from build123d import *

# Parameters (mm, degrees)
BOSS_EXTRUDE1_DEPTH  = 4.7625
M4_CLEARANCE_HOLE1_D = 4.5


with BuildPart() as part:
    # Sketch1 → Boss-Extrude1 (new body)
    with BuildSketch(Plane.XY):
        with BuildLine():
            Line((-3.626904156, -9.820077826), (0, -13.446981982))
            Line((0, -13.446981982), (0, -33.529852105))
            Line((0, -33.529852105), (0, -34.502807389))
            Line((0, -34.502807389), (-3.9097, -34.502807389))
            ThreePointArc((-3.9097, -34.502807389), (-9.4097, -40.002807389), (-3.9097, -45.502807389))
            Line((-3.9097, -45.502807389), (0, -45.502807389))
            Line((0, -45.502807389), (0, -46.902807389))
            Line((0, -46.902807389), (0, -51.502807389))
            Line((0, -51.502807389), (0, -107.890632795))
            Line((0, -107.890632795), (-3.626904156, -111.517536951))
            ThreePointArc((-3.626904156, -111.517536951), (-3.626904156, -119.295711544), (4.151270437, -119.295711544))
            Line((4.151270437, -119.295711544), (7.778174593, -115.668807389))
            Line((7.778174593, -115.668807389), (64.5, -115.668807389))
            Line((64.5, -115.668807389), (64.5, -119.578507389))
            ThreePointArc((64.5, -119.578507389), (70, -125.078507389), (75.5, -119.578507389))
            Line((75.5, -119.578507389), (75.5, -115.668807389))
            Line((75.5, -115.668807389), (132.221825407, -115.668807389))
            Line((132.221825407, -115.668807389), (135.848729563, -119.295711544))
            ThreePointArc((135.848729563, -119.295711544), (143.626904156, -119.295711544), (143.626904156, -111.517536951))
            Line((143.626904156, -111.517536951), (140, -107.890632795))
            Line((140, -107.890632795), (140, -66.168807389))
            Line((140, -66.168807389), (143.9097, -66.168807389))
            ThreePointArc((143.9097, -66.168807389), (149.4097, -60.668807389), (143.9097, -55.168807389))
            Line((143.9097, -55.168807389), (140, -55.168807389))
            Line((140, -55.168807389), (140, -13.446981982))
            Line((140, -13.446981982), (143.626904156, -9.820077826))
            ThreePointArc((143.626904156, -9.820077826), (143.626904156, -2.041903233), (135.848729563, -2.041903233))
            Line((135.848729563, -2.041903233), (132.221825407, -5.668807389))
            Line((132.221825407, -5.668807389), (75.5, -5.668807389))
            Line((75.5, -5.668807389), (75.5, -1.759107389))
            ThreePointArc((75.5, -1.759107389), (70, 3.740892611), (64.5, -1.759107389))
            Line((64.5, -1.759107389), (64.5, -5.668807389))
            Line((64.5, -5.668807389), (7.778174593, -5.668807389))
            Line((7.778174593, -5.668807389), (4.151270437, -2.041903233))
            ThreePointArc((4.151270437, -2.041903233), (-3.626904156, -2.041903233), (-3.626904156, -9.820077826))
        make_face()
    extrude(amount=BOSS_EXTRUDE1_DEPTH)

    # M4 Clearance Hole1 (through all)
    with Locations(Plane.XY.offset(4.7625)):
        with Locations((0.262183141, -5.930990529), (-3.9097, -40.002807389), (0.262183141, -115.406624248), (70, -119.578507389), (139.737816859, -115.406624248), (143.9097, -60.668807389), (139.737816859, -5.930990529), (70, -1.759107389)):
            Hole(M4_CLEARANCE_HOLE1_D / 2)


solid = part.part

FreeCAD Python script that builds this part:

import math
import FreeCAD as App
import Part
import Sketcher
from FreeCAD import Vector
Q = App.Units.Quantity

doc = App.newDocument("Part")
body = doc.addObject("PartDesign::Body", "Body")

# Sketch on XY plane
sketch1 = doc.addObject("Sketcher::SketchObject", "Sketch")
body.addObject(sketch1)
sketch1.AttachmentSupport = (doc.XY_Plane, [""])
sketch1.MapMode = "FlatFace"
sketch1.addGeometry(Part.LineSegment(Vector(-3.6, -9.8, 0), Vector(0, -13.4, 0)), False)
sketch1.addGeometry(Part.LineSegment(Vector(0, -13.4, 0), Vector(0, -34.5, 0)), False)
sketch1.addGeometry(Part.LineSegment(Vector(0, -34.5, 0), Vector(-3.9, -34.5, 0)), False)
sketch1.addGeometry(Part.ArcOfCircle(Part.Circle(Vector(-3.9, -40, 0), Vector(0, 0, 1), 5.5), math.radians(90), math.radians(270)), False)
sketch1.addGeometry(Part.LineSegment(Vector(-3.9, -45.5, 0), Vector(0, -45.5, 0)), False)
sketch1.addGeometry(Part.LineSegment(Vector(0, -45.5, 0), Vector(0, -107.9, 0)), False)
sketch1.addGeometry(Part.LineSegment(Vector(0, -107.9, 0), Vector(-3.6, -111.5, 0)), False)
sketch1.addGeometry(Part.ArcOfCircle(Part.Circle(Vector(0.3, -115.4, 0), Vector(0, 0, 1), 5.5), math.radians(135), math.radians(315)), False)
sketch1.addGeometry(Part.LineSegment(Vector(4.2, -119.3, 0), Vector(7.8, -115.7, 0)), False)
sketch1.addGeometry(Part.LineSegment(Vector(7.8, -115.7, 0), Vector(64.5, -115.7, 0)), False)
sketch1.addGeometry(Part.LineSegment(Vector(64.5, -115.7, 0), Vector(64.5, -119.6, 0)), False)
sketch1.addGeometry(Part.ArcOfCircle(Part.Circle(Vector(70, -119.6, 0), Vector(0, 0, 1), 5.5), math.radians(180), math.radians(360)), False)
sketch1.addGeometry(Part.LineSegment(Vector(75.5, -119.6, 0), Vector(75.5, -115.7, 0)), False)
sketch1.addGeometry(Part.LineSegment(Vector(75.5, -115.7, 0), Vector(132.2, -115.7, 0)), False)
sketch1.addGeometry(Part.LineSegment(Vector(132.2, -115.7, 0), Vector(135.8, -119.3, 0)), False)
sketch1.addGeometry(Part.ArcOfCircle(Part.Circle(Vector(139.7, -115.4, 0), Vector(0, 0, 1), 5.5), math.radians(-135), math.radians(45)), False)
sketch1.addGeometry(Part.LineSegment(Vector(143.6, -111.5, 0), Vector(140, -107.9, 0)), False)
sketch1.addGeometry(Part.LineSegment(Vector(140, -107.9, 0), Vector(140, -66.2, 0)), False)
sketch1.addGeometry(Part.LineSegment(Vector(140, -66.2, 0), Vector(143.9, -66.2, 0)), False)
sketch1.addGeometry(Part.ArcOfCircle(Part.Circle(Vector(143.9, -60.7, 0), Vector(0, 0, 1), 5.5), math.radians(-90), math.radians(90)), False)
sketch1.addGeometry(Part.LineSegment(Vector(143.9, -55.2, 0), Vector(140, -55.2, 0)), False)
sketch1.addGeometry(Part.LineSegment(Vector(140, -55.2, 0), Vector(140, -13.4, 0)), False)
sketch1.addGeometry(Part.LineSegment(Vector(140, -13.4, 0), Vector(143.6, -9.8, 0)), False)
sketch1.addGeometry(Part.ArcOfCircle(Part.Circle(Vector(139.7, -5.9, 0), Vector(0, 0, 1), 5.5), math.radians(-45), math.radians(135)), False)
sketch1.addGeometry(Part.LineSegment(Vector(135.8, -2, 0), Vector(132.2, -5.7, 0)), False)
sketch1.addGeometry(Part.LineSegment(Vector(132.2, -5.7, 0), Vector(75.5, -5.7, 0)), False)
sketch1.addGeometry(Part.LineSegment(Vector(75.5, -5.7, 0), Vector(75.5, -1.8, 0)), False)
sketch1.addGeometry(Part.ArcOfCircle(Part.Circle(Vector(70, -1.8, 0), Vector(0, 0, 1), 5.5), math.radians(0), math.radians(180)), False)
sketch1.addGeometry(Part.LineSegment(Vector(64.5, -1.8, 0), Vector(64.5, -5.7, 0)), False)
sketch1.addGeometry(Part.LineSegment(Vector(64.5, -5.7, 0), Vector(7.8, -5.7, 0)), False)
sketch1.addGeometry(Part.LineSegment(Vector(7.8, -5.7, 0), Vector(4.2, -2, 0)), False)
sketch1.addGeometry(Part.ArcOfCircle(Part.Circle(Vector(0.3, -5.9, 0), Vector(0, 0, 1), 5.5), math.radians(45), math.radians(225)), False)
sketch1.addConstraint(Sketcher.Constraint("Coincident", 0, 2, 1, 1))
sketch1.addConstraint(Sketcher.Constraint("Coincident", 1, 2, 2, 1))
sketch1.addConstraint(Sketcher.Constraint("Tangent", 2, 2, 3, 1))
sketch1.addConstraint(Sketcher.Constraint("Tangent", 3, 2, 4, 1))
sketch1.addConstraint(Sketcher.Constraint("Coincident", 4, 2, 5, 1))
sketch1.addConstraint(Sketcher.Constraint("Coincident", 5, 2, 6, 1))
sketch1.addConstraint(Sketcher.Constraint("Tangent", 6, 2, 7, 1))
sketch1.addConstraint(Sketcher.Constraint("Tangent", 7, 2, 8, 1))
sketch1.addConstraint(Sketcher.Constraint("Coincident", 8, 2, 9, 1))
sketch1.addConstraint(Sketcher.Constraint("Coincident", 9, 2, 10, 1))
sketch1.addConstraint(Sketcher.Constraint("Tangent", 10, 2, 11, 1))
sketch1.addConstraint(Sketcher.Constraint("Tangent", 11, 2, 12, 1))
sketch1.addConstraint(Sketcher.Constraint("Coincident", 12, 2, 13, 1))
sketch1.addConstraint(Sketcher.Constraint("Coincident", 13, 2, 14, 1))
sketch1.addConstraint(Sketcher.Constraint("Tangent", 14, 2, 15, 1))
sketch1.addConstraint(Sketcher.Constraint("Tangent", 15, 2, 16, 1))
sketch1.addConstraint(Sketcher.Constraint("Coincident", 16, 2, 17, 1))
sketch1.addConstraint(Sketcher.Constraint("Coincident", 17, 2, 18, 1))
sketch1.addConstraint(Sketcher.Constraint("Tangent", 18, 2, 19, 1))
sketch1.addConstraint(Sketcher.Constraint("Tangent", 19, 2, 20, 1))
sketch1.addConstraint(Sketcher.Constraint("Coincident", 20, 2, 21, 1))
sketch1.addConstraint(Sketcher.Constraint("Coincident", 21, 2, 22, 1))
sketch1.addConstraint(Sketcher.Constraint("Tangent", 22, 2, 23, 1))
sketch1.addConstraint(Sketcher.Constraint("Tangent", 23, 2, 24, 1))
sketch1.addConstraint(Sketcher.Constraint("Coincident", 24, 2, 25, 1))
sketch1.addConstraint(Sketcher.Constraint("Coincident", 25, 2, 26, 1))
sketch1.addConstraint(Sketcher.Constraint("Tangent", 26, 2, 27, 1))
sketch1.addConstraint(Sketcher.Constraint("Tangent", 27, 2, 28, 1))
sketch1.addConstraint(Sketcher.Constraint("Coincident", 28, 2, 29, 1))
sketch1.addConstraint(Sketcher.Constraint("Coincident", 29, 2, 30, 1))
sketch1.addConstraint(Sketcher.Constraint("Tangent", 30, 2, 31, 1))
sketch1.addConstraint(Sketcher.Constraint("Tangent", 31, 2, 0, 1))
sketch1.addConstraint(Sketcher.Constraint("Vertical", 1))
sketch1.addConstraint(Sketcher.Constraint("Horizontal", 2))
sketch1.addConstraint(Sketcher.Constraint("Horizontal", 4))
sketch1.addConstraint(Sketcher.Constraint("Vertical", 5))
sketch1.addConstraint(Sketcher.Constraint("Horizontal", 9))
sketch1.addConstraint(Sketcher.Constraint("Vertical", 10))
sketch1.addConstraint(Sketcher.Constraint("Vertical", 12))
sketch1.addConstraint(Sketcher.Constraint("Horizontal", 13))
sketch1.addConstraint(Sketcher.Constraint("Vertical", 17))
sketch1.addConstraint(Sketcher.Constraint("Horizontal", 18))
sketch1.addConstraint(Sketcher.Constraint("Horizontal", 20))
sketch1.addConstraint(Sketcher.Constraint("Vertical", 21))
sketch1.addConstraint(Sketcher.Constraint("Horizontal", 25))
sketch1.addConstraint(Sketcher.Constraint("Vertical", 26))
sketch1.addConstraint(Sketcher.Constraint("Vertical", 28))
sketch1.addConstraint(Sketcher.Constraint("Horizontal", 29))
sketch1.addConstraint(Sketcher.Constraint("Equal", 3, 7))
sketch1.addConstraint(Sketcher.Constraint("Equal", 7, 11))
sketch1.addConstraint(Sketcher.Constraint("Equal", 11, 15))
sketch1.addConstraint(Sketcher.Constraint("Equal", 15, 19))
sketch1.addConstraint(Sketcher.Constraint("Equal", 19, 23))
sketch1.addConstraint(Sketcher.Constraint("Equal", 23, 27))
sketch1.addConstraint(Sketcher.Constraint("Equal", 27, 31))
sketch1.addConstraint(Sketcher.Constraint("PointOnObject", 0, 2, -2))
sketch1.addConstraint(Sketcher.Constraint("PointOnObject", 4, 2, -2))
sketch1.addConstraint(Sketcher.Constraint("Perpendicular", 0, 6))
sketch1.addConstraint(Sketcher.Constraint("Parallel", 6, 8))
sketch1.addConstraint(Sketcher.Constraint("Perpendicular", 8, 14))
sketch1.addConstraint(Sketcher.Constraint("Parallel", 14, 16))
sketch1.addConstraint(Sketcher.Constraint("Perpendicular", 16, 22))
sketch1.addConstraint(Sketcher.Constraint("Parallel", 22, 24))
sketch1.addConstraint(Sketcher.Constraint("Perpendicular", 24, 30))
sketch1.addConstraint(Sketcher.Constraint("Horizontal", 7, 3, 15, 3))
sketch1.addConstraint(Sketcher.Constraint("Horizontal", 23, 3, 31, 3))
sketch1.addConstraint(Sketcher.Constraint("Horizontal", 9, 2, 12, 2))
sketch1.addConstraint(Sketcher.Constraint("Horizontal", 7, 2, 14, 2))
sketch1.addConstraint(Sketcher.Constraint("Horizontal", 5, 2, 16, 2))
sketch1.addConstraint(Sketcher.Constraint("Horizontal", 0, 2, 21, 2))
sketch1.addConstraint(Sketcher.Constraint("Horizontal", 25, 2, 28, 2))
sketch1.addConstraint(Sketcher.Constraint("Vertical", 15, 3, 23, 3))
sketch1.addConstraint(Sketcher.Constraint("Vertical", 11, 3, 27, 3))
sketch1.addConstraint(Sketcher.Constraint("Vertical", 7, 3, 31, 3))
sketch1.addConstraint(Sketcher.Constraint("Vertical", 13, 2, 24, 2))
sketch1.addConstraint(Sketcher.Constraint("Equal", 9, 13))
sketch1.addConstraint(Sketcher.Constraint("Equal", 4, 18))
sketch1.addConstraint(Sketcher.Constraint("Equal", 20, 10))
sketch1.addConstraint(Sketcher.Constraint("Equal", 17, 21))
sketch1.addConstraint(Sketcher.Constraint("Equal", 12, 26))
sketch1.addConstraint(Sketcher.Constraint("Equal", 6, 8))
sketch1.addConstraint(Sketcher.Constraint("Radius", 3, Q("5.5 mm")))
sketch1.addConstraint(Sketcher.Constraint("DistanceX", -1, 1, 11, 3, Q("70 mm")))
sketch1.addConstraint(Sketcher.Constraint("DistanceY", 13, 2, 19, 3, Q("55 mm")))
sketch1.addConstraint(Sketcher.Constraint("DistanceX", 2, 2, 2, 1, Q("3.9097 mm")))
sketch1.addConstraint(Sketcher.Constraint("DistanceY", 19, 3, 3, 3, Q("20.666 mm")))
sketch1.addConstraint(Sketcher.Constraint("DistanceY", 23, 3, -1, 1, Q("5.930991 mm")))
sketch1.addConstraint(Sketcher.Constraint("DistanceY", 0, 2, -1, 1, Q("13.446982 mm")))
pad1 = doc.addObject("PartDesign::Pad", "Pad")
body.addObject(pad1)
pad1.Profile = sketch1
pad1.Length = 4.7625

# Sketch on XY plane
sketch2 = doc.addObject("Sketcher::SketchObject", "Sketch001")
body.addObject(sketch2)
sketch2.AttachmentSupport = (doc.XY_Plane, [""])
sketch2.MapMode = "FlatFace"
sketch2.AttachmentOffset = App.Placement(Vector(0, 0, 4.7625), App.Rotation())
sketch2.addGeometry(Part.Circle(Vector(0.3, -5.9, 0), Vector(0, 0, 1), 2.2), False)
sketch2.addGeometry(Part.Circle(Vector(-3.9, -40, 0), Vector(0, 0, 1), 2.2), False)
sketch2.addGeometry(Part.Circle(Vector(0.3, -115.4, 0), Vector(0, 0, 1), 2.2), False)
sketch2.addGeometry(Part.Circle(Vector(70, -119.6, 0), Vector(0, 0, 1), 2.2), False)
sketch2.addGeometry(Part.Circle(Vector(139.7, -115.4, 0), Vector(0, 0, 1), 2.2), False)
sketch2.addGeometry(Part.Circle(Vector(143.9, -60.7, 0), Vector(0, 0, 1), 2.2), False)
sketch2.addGeometry(Part.Circle(Vector(139.7, -5.9, 0), Vector(0, 0, 1), 2.2), False)
sketch2.addGeometry(Part.Circle(Vector(70, -1.8, 0), Vector(0, 0, 1), 2.2), False)
sketch2.addConstraint(Sketcher.Constraint("Equal", 0, 1))
sketch2.addConstraint(Sketcher.Constraint("Equal", 1, 2))
sketch2.addConstraint(Sketcher.Constraint("Equal", 2, 3))
sketch2.addConstraint(Sketcher.Constraint("Equal", 3, 4))
sketch2.addConstraint(Sketcher.Constraint("Equal", 4, 5))
sketch2.addConstraint(Sketcher.Constraint("Equal", 5, 6))
sketch2.addConstraint(Sketcher.Constraint("Equal", 6, 7))
sketch2.addConstraint(Sketcher.Constraint("Horizontal", 2, 3, 4, 3))
sketch2.addConstraint(Sketcher.Constraint("Horizontal", 0, 3, 6, 3))
sketch2.addConstraint(Sketcher.Constraint("Vertical", 0, 3, 2, 3))
sketch2.addConstraint(Sketcher.Constraint("Vertical", 4, 3, 6, 3))
sketch2.addConstraint(Sketcher.Constraint("Vertical", 3, 3, 7, 3))
sketch2.addConstraint(Sketcher.Constraint("Diameter", 0, Q("4.5 mm")))
sketch2.addConstraint(Sketcher.Constraint("DistanceX", -1, 1, 3, 3, Q("70 mm")))
sketch2.addConstraint(Sketcher.Constraint("DistanceY", 5, 3, 1, 3, Q("20.666 mm")))
sketch2.addConstraint(Sketcher.Constraint("DistanceX", 1, 3, -1, 1, Q("3.9097 mm")))
sketch2.addConstraint(Sketcher.Constraint("DistanceX", -1, 1, 5, 3, Q("143.9097 mm")))
sketch2.addConstraint(Sketcher.Constraint("DistanceY", 3, 3, 1, 3, Q("79.5757 mm")))
sketch2.addConstraint(Sketcher.Constraint("DistanceY", 1, 3, 7, 3, Q("38.2437 mm")))
sketch2.addConstraint(Sketcher.Constraint("DistanceY", 0, 3, -1, 1, Q("5.930991 mm")))
sketch2.addConstraint(Sketcher.Constraint("DistanceX", -1, 1, 0, 3, Q("0.262183 mm")))
sketch2.addConstraint(Sketcher.Constraint("DistanceY", 1, 3, -1, 1, Q("40.002807 mm")))
sketch2.addConstraint(Sketcher.Constraint("DistanceY", 2, 3, -1, 1, Q("115.406624 mm")))
sketch2.addConstraint(Sketcher.Constraint("DistanceX", -1, 1, 4, 3, Q("139.737817 mm")))
doc.recompute()
hole = doc.addObject("PartDesign::Hole", "Hole")
body.addObject(hole)
hole.Profile = sketch2
hole.ThreadType = "None"
hole.Diameter = 4.5
hole.DepthType = "ThroughAll"

doc.recompute()
